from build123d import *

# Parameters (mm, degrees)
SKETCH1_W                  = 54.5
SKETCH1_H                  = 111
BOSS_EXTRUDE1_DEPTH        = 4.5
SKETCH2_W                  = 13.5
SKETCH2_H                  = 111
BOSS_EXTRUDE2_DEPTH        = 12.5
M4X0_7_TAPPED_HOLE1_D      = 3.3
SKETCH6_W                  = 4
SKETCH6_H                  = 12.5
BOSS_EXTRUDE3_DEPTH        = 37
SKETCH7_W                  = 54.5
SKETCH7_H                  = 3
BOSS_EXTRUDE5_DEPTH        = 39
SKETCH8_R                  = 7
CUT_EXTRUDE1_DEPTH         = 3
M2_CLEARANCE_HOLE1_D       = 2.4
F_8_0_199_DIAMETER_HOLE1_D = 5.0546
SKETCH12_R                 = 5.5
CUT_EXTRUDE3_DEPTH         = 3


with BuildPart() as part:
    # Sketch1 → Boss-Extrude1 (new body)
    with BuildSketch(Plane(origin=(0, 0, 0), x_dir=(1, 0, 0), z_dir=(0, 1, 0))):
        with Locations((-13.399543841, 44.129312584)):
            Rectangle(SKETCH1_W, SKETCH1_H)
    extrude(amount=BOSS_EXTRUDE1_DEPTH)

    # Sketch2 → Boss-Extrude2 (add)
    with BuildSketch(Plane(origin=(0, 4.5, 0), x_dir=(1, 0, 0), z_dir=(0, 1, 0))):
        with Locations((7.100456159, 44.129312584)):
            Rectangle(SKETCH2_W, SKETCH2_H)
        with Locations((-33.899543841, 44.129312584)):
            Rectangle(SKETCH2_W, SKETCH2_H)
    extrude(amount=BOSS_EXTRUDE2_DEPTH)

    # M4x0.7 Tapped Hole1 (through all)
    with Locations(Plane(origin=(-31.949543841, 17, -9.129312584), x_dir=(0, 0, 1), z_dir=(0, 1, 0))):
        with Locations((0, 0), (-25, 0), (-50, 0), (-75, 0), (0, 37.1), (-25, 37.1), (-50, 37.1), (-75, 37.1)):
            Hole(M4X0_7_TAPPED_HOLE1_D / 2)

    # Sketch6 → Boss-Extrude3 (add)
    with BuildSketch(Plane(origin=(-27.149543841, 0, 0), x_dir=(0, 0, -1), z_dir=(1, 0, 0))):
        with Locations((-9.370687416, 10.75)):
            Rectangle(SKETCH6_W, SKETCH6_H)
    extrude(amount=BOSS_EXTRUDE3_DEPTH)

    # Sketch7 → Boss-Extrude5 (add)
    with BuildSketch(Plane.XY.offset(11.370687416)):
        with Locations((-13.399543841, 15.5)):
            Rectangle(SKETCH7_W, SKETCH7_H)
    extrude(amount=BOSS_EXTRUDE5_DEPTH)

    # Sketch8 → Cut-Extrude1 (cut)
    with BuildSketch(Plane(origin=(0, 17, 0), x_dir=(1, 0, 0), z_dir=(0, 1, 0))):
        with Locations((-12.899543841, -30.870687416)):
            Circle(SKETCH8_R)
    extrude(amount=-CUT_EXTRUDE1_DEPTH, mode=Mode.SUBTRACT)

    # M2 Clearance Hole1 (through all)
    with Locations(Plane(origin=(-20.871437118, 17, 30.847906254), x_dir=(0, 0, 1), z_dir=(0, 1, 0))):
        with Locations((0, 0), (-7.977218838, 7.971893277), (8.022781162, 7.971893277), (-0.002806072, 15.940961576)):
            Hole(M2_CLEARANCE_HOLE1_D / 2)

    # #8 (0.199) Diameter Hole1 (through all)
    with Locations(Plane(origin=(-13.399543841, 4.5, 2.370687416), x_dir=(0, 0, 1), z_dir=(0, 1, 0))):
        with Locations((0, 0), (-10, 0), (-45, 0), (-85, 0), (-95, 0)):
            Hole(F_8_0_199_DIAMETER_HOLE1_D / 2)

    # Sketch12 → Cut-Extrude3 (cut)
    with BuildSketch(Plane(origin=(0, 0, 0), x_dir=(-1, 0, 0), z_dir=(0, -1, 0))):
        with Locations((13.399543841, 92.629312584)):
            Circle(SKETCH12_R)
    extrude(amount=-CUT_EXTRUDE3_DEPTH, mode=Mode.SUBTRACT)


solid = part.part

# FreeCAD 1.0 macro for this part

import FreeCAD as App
import Part
import Sketcher
from FreeCAD import Vector

doc = App.newDocument("Part")
body = doc.addObject("PartDesign::Body", "Body")

# Sketch on XZ plane
sketch1 = body.newObject("Sketcher::SketchObject", "Sketch")
sketch1.AttachmentSupport = (doc.getObject("XZ_Plane"), [""])
sketch1.MapMode = "FlatFace"
sketch1.addGeometry(Part.LineSegment(Vector(-41, -100, 0), Vector(-41, 11, 0)), False)
sketch1.addGeometry(Part.LineSegment(Vector(-41, 11, 0), Vector(14, 11, 0)), False)
sketch1.addGeometry(Part.LineSegment(Vector(14, 11, 0), Vector(14, -100, 0)), False)
sketch1.addGeometry(Part.LineSegment(Vector(14, -100, 0), Vector(-41, -100, 0)), False)
sketch1.addConstraint(Sketcher.Constraint("Coincident", 0, 2, 1, 1))
sketch1.addConstraint(Sketcher.Constraint("Coincident", 1, 2, 2, 1))
sketch1.addConstraint(Sketcher.Constraint("Coincident", 2, 2, 3, 1))
sketch1.addConstraint(Sketcher.Constraint("Coincident", 3, 2, 0, 1))
sketch1.addConstraint(Sketcher.Constraint("Vertical", 0))
sketch1.addConstraint(Sketcher.Constraint("Horizontal", 1))
sketch1.addConstraint(Sketcher.Constraint("Vertical", 2))
sketch1.addConstraint(Sketcher.Constraint("Horizontal", 3))
sketch1.addConstraint(Sketcher.Constraint("DistanceY", 0, 1, 0, 2, 111.0))
sketch1.addConstraint(Sketcher.Constraint("DistanceX", 1, 1, 1, 2, 54.5))
sketch1.addConstraint(Sketcher.Constraint("DistanceX", 0, 2, -1, 1, 40.649544))
sketch1.addConstraint(Sketcher.Constraint("DistanceY", -1, 1, 0, 2, 11.370687))
pad1 = body.newObject("PartDesign::Pad", "Pad")
pad1.Profile = sketch1
pad1.Length = 4.5
pad1.Reversed = True

# Sketch on XZ plane
sketch2 = body.newObject("Sketcher::SketchObject", "Sketch001")
sketch2.AttachmentSupport = (doc.getObject("XZ_Plane"), [""])
sketch2.MapMode = "FlatFace"
sketch2.AttachmentOffset = App.Placement(Vector(0, 0, -4.5), App.Rotation())
sketch2.addGeometry(Part.LineSegment(Vector(0, -100, 0), Vector(0, 11, 0)), False)
sketch2.addGeometry(Part.LineSegment(Vector(0, 11, 0), Vector(14, 11, 0)), False)
sketch2.addGeometry(Part.LineSegment(Vector(14, 11, 0), Vector(14, -100, 0)), False)
sketch2.addGeometry(Part.LineSegment(Vector(14, -100, 0), Vector(0, -100, 0)), False)
sketch2.addGeometry(Part.LineSegment(Vector(-41, -100, 0), Vector(-41, 11, 0)), False)
sketch2.addGeometry(Part.LineSegment(Vector(-41, 11, 0), Vector(-27, 11, 0)), False)
sketch2.addGeometry(Part.LineSegment(Vector(-27, 11, 0), Vector(-27, -100, 0)), False)
sketch2.addGeometry(Part.LineSegment(Vector(-27, -100, 0), Vector(-41, -100, 0)), False)
sketch2.addConstraint(Sketcher.Constraint("Coincident", 0, 2, 1, 1))
sketch2.addConstraint(Sketcher.Constraint("Coincident", 1, 2, 2, 1))
sketch2.addConstraint(Sketcher.Constraint("Coincident", 2, 2, 3, 1))
sketch2.addConstraint(Sketcher.Constraint("Coincident", 3, 2, 0, 1))
sketch2.addConstraint(Sketcher.Constraint("Coincident", 4, 2, 5, 1))
sketch2.addConstraint(Sketcher.Constraint("Coincident", 5, 2, 6, 1))
sketch2.addConstraint(Sketcher.Constraint("Coincident", 6, 2, 7, 1))
sketch2.addConstraint(Sketcher.Constraint("Coincident", 7, 2, 4, 1))
sketch2.addConstraint(Sketcher.Constraint("Vertical", 0))
sketch2.addConstraint(Sketcher.Constraint("Horizontal", 1))
sketch2.addConstraint(Sketcher.Constraint("Vertical", 2))
sketch2.addConstraint(Sketcher.Constraint("Horizontal", 3))
sketch2.addConstraint(Sketcher.Constraint("Vertical", 4))
sketch2.addConstraint(Sketcher.Constraint("Horizontal", 5))
sketch2.addConstraint(Sketcher.Constraint("Vertical", 6))
sketch2.addConstraint(Sketcher.Constraint("Horizontal", 7))
sketch2.addConstraint(Sketcher.Constraint("Horizontal", 1, 2, 4, 2))
sketch2.addConstraint(Sketcher.Constraint("Horizontal", 3, 2, 6, 2))
sketch2.addConstraint(Sketcher.Constraint("Equal", 3, 5))
sketch2.addConstraint(Sketcher.Constraint("DistanceY", 0, 1, 0, 2, 111.0))
sketch2.addConstraint(Sketcher.Constraint("DistanceX", 1, 1, 1, 2, 13.5))
sketch2.addConstraint(Sketcher.Constraint("DistanceX", 4, 2, 0, 2, 41.0))
sketch2.addConstraint(Sketcher.Constraint("DistanceX", -1, 1, 0, 2, 0.350456))
sketch2.addConstraint(Sketcher.Constraint("DistanceY", -1, 1, 0, 2, 11.370687))
pad2 = body.newObject("PartDesign::Pad", "Pad001")
pad2.Profile = sketch2
pad2.Length = 12.5
pad2.Reversed = True

# Sketch on XZ plane
sketch3 = body.newObject("Sketcher::SketchObject", "Sketch002")
sketch3.AttachmentSupport = (doc.getObject("XZ_Plane"), [""])
sketch3.MapMode = "FlatFace"
sketch3.AttachmentOffset = App.Placement(Vector(0, 0, -17), App.Rotation())
sketch3.addGeometry(Part.Circle(Vector(-31.9, -9.1, 0), Vector(0, 0, 1), 1.6), False)
sketch3.addGeometry(Part.Circle(Vector(-31.9, -34.1, 0), Vector(0, 0, 1), 1.6), False)
sketch3.addGeometry(Part.Circle(Vector(-31.9, -59.1, 0), Vector(0, 0, 1), 1.6), False)
sketch3.addGeometry(Part.Circle(Vector(-31.9, -84.1, 0), Vector(0, 0, 1), 1.6), False)
sketch3.addGeometry(Part.Circle(Vector(5.2, -9.1, 0), Vector(0, 0, 1), 1.6), False)
sketch3.addGeometry(Part.Circle(Vector(5.2, -34.1, 0), Vector(0, 0, 1), 1.6), False)
sketch3.addGeometry(Part.Circle(Vector(5.2, -59.1, 0), Vector(0, 0, 1), 1.6), False)
sketch3.addGeometry(Part.Circle(Vector(5.2, -84.1, 0), Vector(0, 0, 1), 1.6), False)
sketch3.addConstraint(Sketcher.Constraint("Equal", 0, 1))
sketch3.addConstraint(Sketcher.Constraint("Equal", 1, 2))
sketch3.addConstraint(Sketcher.Constraint("Equal", 2, 3))
sketch3.addConstraint(Sketcher.Constraint("Equal", 3, 4))
sketch3.addConstraint(Sketcher.Constraint("Equal", 4, 5))
sketch3.addConstraint(Sketcher.Constraint("Equal", 5, 6))
sketch3.addConstraint(Sketcher.Constraint("Equal", 6, 7))
sketch3.addConstraint(Sketcher.Constraint("Horizontal", 0, 3, 4, 3))
sketch3.addConstraint(Sketcher.Constraint("Horizontal", 1, 3, 5, 3))
sketch3.addConstraint(Sketcher.Constraint("Horizontal", 2, 3, 6, 3))
sketch3.addConstraint(Sketcher.Constraint("Horizontal", 3, 3, 7, 3))
sketch3.addConstraint(Sketcher.Constraint("Vertical", 0, 3, 1, 3))
sketch3.addConstraint(Sketcher.Constraint("Vertical", 1, 3, 2, 3))
sketch3.addConstraint(Sketcher.Constraint("Vertical", 2, 3, 3, 3))
sketch3.addConstraint(Sketcher.Constraint("Vertical", 4, 3, 5, 3))
sketch3.addConstraint(Sketcher.Constraint("Vertical", 5, 3, 6, 3))
sketch3.addConstraint(Sketcher.Constraint("Vertical", 6, 3, 7, 3))
sketch3.addConstraint(Sketcher.Constraint("Diameter", 0, 3.3))
sketch3.addConstraint(Sketcher.Constraint("DistanceY", 1, 3, 0, 3, 25.0))
sketch3.addConstraint(Sketcher.Constraint("DistanceY", 2, 3, 1, 3, 25.0))
sketch3.addConstraint(Sketcher.Constraint("DistanceY", 3, 3, 2, 3, 25.0))
sketch3.addConstraint(Sketcher.Constraint("DistanceX", 0, 3, 4, 3, 37.1))
sketch3.addConstraint(Sketcher.Constraint("DistanceX", 0, 3, -1, 1, 31.949544))
sketch3.addConstraint(Sketcher.Constraint("DistanceY", 0, 3, -1, 1, 9.129313))
doc.recompute()
hole = body.newObject("PartDesign::Hole", "Hole")
hole.Profile = sketch3
hole.ThreadType = "None"
hole.Diameter = 3.3
hole.DepthType = "ThroughAll"
hole.Reversed = True

# Sketch on YZ plane
sketch4 = body.newObject("Sketcher::SketchObject", "Sketch003")
sketch4.AttachmentSupport = (doc.getObject("YZ_Plane"), [""])
sketch4.MapMode = "FlatFace"
sketch4.AttachmentOffset = App.Placement(Vector(0, 0, -27.149544), App.Rotation())
sketch4.addGeometry(Part.LineSegment(Vector(17, 11.4, 0), Vector(4.5, 11.4, 0)), False)
sketch4.addGeometry(Part.LineSegment(Vector(4.5, 11.4, 0), Vector(4.5, 7.4, 0)), False)
sketch4.addGeometry(Part.LineSegment(Vector(4.5, 7.4, 0), Vector(17, 7.4, 0)), False)
sketch4.addGeometry(Part.LineSegment(Vector(17, 7.4, 0), Vector(17, 11.4, 0)), False)
sketch4.addConstraint(Sketcher.Constraint("Coincident", 0, 2, 1, 1))
sketch4.addConstraint(Sketcher.Constraint("Coincident", 1, 2, 2, 1))
sketch4.addConstraint(Sketcher.Constraint("Coincident", 2, 2, 3, 1))
sketch4.addConstraint(Sketcher.Constraint("Coincident", 3, 2, 0, 1))
sketch4.addConstraint(Sketcher.Constraint("Horizontal", 0))
sketch4.addConstraint(Sketcher.Constraint("Vertical", 1))
sketch4.addConstraint(Sketcher.Constraint("Horizontal", 2))
sketch4.addConstraint(Sketcher.Constraint("Vertical", 3))
sketch4.addConstraint(Sketcher.Constraint("DistanceY", 1, 2, 1, 1, 4.0))
sketch4.addConstraint(Sketcher.Constraint("DistanceX", 0, 2, 0, 1, 12.5))
sketch4.addConstraint(Sketcher.Constraint("DistanceX", -1, 1, 2, 2, 17.0))
sketch4.addConstraint(Sketcher.Constraint("DistanceY", -1, 1, 0, 2, 11.370687))
pad3 = body.newObject("PartDesign::Pad", "Pad002")
pad3.Profile = sketch4
pad3.Length = 37

# Sketch on XY plane
sketch5 = body.newObject("Sketcher::SketchObject", "Sketch004")
sketch5.AttachmentSupport = (doc.getObject("XY_Plane"), [""])
sketch5.MapMode = "FlatFace"
sketch5.AttachmentOffset = App.Placement(Vector(0, 0, 11.370687), App.Rotation())
sketch5.addGeometry(Part.LineSegment(Vector(-40.6, 17, 0), Vector(-40.6, 14, 0)), False)
sketch5.addGeometry(Part.LineSegment(Vector(-40.6, 14, 0), Vector(13.9, 14, 0)), False)
sketch5.addGeometry(Part.LineSegment(Vector(13.9, 14, 0), Vector(13.9, 17, 0)), False)
sketch5.addGeometry(Part.LineSegment(Vector(13.9, 17, 0), Vector(-40.6, 17, 0)), False)
sketch5.addConstraint(Sketcher.Constraint("Coincident", 0, 2, 1, 1))
sketch5.addConstraint(Sketcher.Constraint("Coincident", 1, 2, 2, 1))
sketch5.addConstraint(Sketcher.Constraint("Coincident", 2, 2, 3, 1))
sketch5.addConstraint(Sketcher.Constraint("Coincident", 3, 2, 0, 1))
sketch5.addConstraint(Sketcher.Constraint("Vertical", 0))
sketch5.addConstraint(Sketcher.Constraint("Horizontal", 1))
sketch5.addConstraint(Sketcher.Constraint("Vertical", 2))
sketch5.addConstraint(Sketcher.Constraint("Horizontal", 3))
sketch5.addConstraint(Sketcher.Constraint("DistanceY", 0, 2, 0, 1, 3.0))
sketch5.addConstraint(Sketcher.Constraint("DistanceX", 1, 1, 1, 2, 54.5))
sketch5.addConstraint(Sketcher.Constraint("DistanceY", -1, 1, 0, 2, 14.0))
sketch5.addConstraint(Sketcher.Constraint("DistanceX", 0, 2, -1, 1, 40.649544))
pad4 = body.newObject("PartDesign::Pad", "Pad003")
pad4.Profile = sketch5
pad4.Length = 39

# Sketch on XZ plane
sketch6 = body.newObject("Sketcher::SketchObject", "Sketch005")
sketch6.AttachmentSupport = (doc.getObject("XZ_Plane"), [""])
sketch6.MapMode = "FlatFace"
sketch6.AttachmentOffset = App.Placement(Vector(0, 0, -17), App.Rotation())
sketch6.addGeometry(Part.Circle(Vector(-13, 31, 0), Vector(0, 0, 1), 7), False)
sketch6.addConstraint(Sketcher.Constraint("Diameter", 0, 14.0))
sketch6.addConstraint(Sketcher.Constraint("DistanceX", 0, 3, -1, 1, 12.899544))
sketch6.addConstraint(Sketcher.Constraint("DistanceY", -1, 1, 0, 3, 30.870687))
pocket1 = body.newObject("PartDesign::Pocket", "Pocket")
pocket1.Profile = sketch6
pocket1.Length = 3
pocket1.Reversed = True

# Sketch on XZ plane
sketch7 = body.newObject("Sketcher::SketchObject", "Sketch006")
sketch7.AttachmentSupport = (doc.getObject("XZ_Plane"), [""])
sketch7.MapMode = "FlatFace"
sketch7.AttachmentOffset = App.Placement(Vector(0, 0, -17), App.Rotation())
sketch7.addGeometry(Part.Circle(Vector(-20.9, 30.8, 0), Vector(0, 0, 1), 1.2), False)
sketch7.addGeometry(Part.Circle(Vector(-12.9, 22.9, 0), Vector(0, 0, 1), 1.2), False)
sketch7.addGeometry(Part.Circle(Vector(-12.9, 38.9, 0), Vector(0, 0, 1), 1.2), False)
sketch7.addGeometry(Part.Circle(Vector(-4.9, 30.8, 0), Vector(0, 0, 1), 1.2), False)
sketch7.addConstraint(Sketcher.Constraint("Equal", 0, 1))
sketch7.addConstraint(Sketcher.Constraint("Equal", 1, 2))
sketch7.addConstraint(Sketcher.Constraint("Equal", 2, 3))
sketch7.addConstraint(Sketcher.Constraint("Vertical", 1, 3, 2, 3))
sketch7.addConstraint(Sketcher.Constraint("Diameter", 0, 2.4))
sketch7.addConstraint(Sketcher.Constraint("DistanceY", 1, 3, 2, 3, 16.0))
sketch7.addConstraint(Sketcher.Constraint("DistanceY", -1, 1, 3, 3, 30.8451))
sketch7.addConstraint(Sketcher.Constraint("DistanceY", 1, 3, 0, 3, 7.977219))
sketch7.addConstraint(Sketcher.Constraint("DistanceX", 1, 3, 3, 3, 7.969068))
sketch7.addConstraint(Sketcher.Constraint("DistanceX", 0, 3, 3, 3, 15.940962))
sketch7.addConstraint(Sketcher.Constraint("DistanceX", 0, 3, -1, 1, 20.871437))
sketch7.addConstraint(Sketcher.Constraint("DistanceY", -1, 1, 0, 3, 30.847906))
doc.recompute()
hole2 = body.newObject("PartDesign::Hole", "Hole001")
hole2.Profile = sketch7
hole2.ThreadType = "None"
hole2.Diameter = 2.4
hole2.DepthType = "ThroughAll"
hole2.Reversed = True

# Sketch on XZ plane
sketch8 = body.newObject("Sketcher::SketchObject", "Sketch007")
sketch8.AttachmentSupport = (doc.getObject("XZ_Plane"), [""])
sketch8.MapMode = "FlatFace"
sketch8.AttachmentOffset = App.Placement(Vector(0, 0, -4.5), App.Rotation())
sketch8.addGeometry(Part.Circle(Vector(-13.4, 2.4, 0), Vector(0, 0, 1), 2.5), False)
sketch8.addGeometry(Part.Circle(Vector(-13.4, -7.6, 0), Vector(0, 0, 1), 2.5), False)
sketch8.addGeometry(Part.Circle(Vector(-13.4, -42.6, 0), Vector(0, 0, 1), 2.5), False)
sketch8.addGeometry(Part.Circle(Vector(-13.4, -82.6, 0), Vector(0, 0, 1), 2.5), False)
sketch8.addGeometry(Part.Circle(Vector(-13.4, -92.6, 0), Vector(0, 0, 1), 2.5), False)
sketch8.addConstraint(Sketcher.Constraint("Equal", 0, 1))
sketch8.addConstraint(Sketcher.Constraint("Equal", 1, 2))
sketch8.addConstraint(Sketcher.Constraint("Equal", 2, 3))
sketch8.addConstraint(Sketcher.Constraint("Equal", 3, 4))
sketch8.addConstraint(Sketcher.Constraint("Vertical", 0, 3, 1, 3))
sketch8.addConstraint(Sketcher.Constraint("Vertical", 1, 3, 2, 3))
sketch8.addConstraint(Sketcher.Constraint("Vertical", 2, 3, 3, 3))
sketch8.addConstraint(Sketcher.Constraint("Vertical", 3, 3, 4, 3))
sketch8.addConstraint(Sketcher.Constraint("DistanceY", 1, 3, 0, 3, 10.0))
sketch8.addConstraint(Sketcher.Constraint("DistanceY", 2, 3, 1, 3, 35.0))
sketch8.addConstraint(Sketcher.Constraint("DistanceY", 3, 3, 2, 3, 40.0))
sketch8.addConstraint(Sketcher.Constraint("DistanceY", 4, 3, 3, 3, 10.0))
sketch8.addConstraint(Sketcher.Constraint("Diameter", 0, 5.0546))
sketch8.addConstraint(Sketcher.Constraint("DistanceX", 0, 3, -1, 1, 13.399544))
sketch8.addConstraint(Sketcher.Constraint("DistanceY", -1, 1, 0, 3, 2.370687))
doc.recompute()
hole3 = body.newObject("PartDesign::Hole", "Hole002")
hole3.Profile = sketch8
hole3.ThreadType = "None"
hole3.Diameter = 5.0546
hole3.DepthType = "ThroughAll"
hole3.Reversed = True

# Sketch on XZ plane
sketch9 = body.newObject("Sketcher::SketchObject", "Sketch008")
sketch9.AttachmentSupport = (doc.getObject("XZ_Plane"), [""])
sketch9.MapMode = "FlatFace"
sketch9.addGeometry(Part.Circle(Vector(-13, -93, 0), Vector(0, 0, 1), 6), False)
sketch9.addConstraint(Sketcher.Constraint("Diameter", 0, 11.0))
sketch9.addConstraint(Sketcher.Constraint("DistanceX", 0, 3, -1, 1, 13.399544))
sketch9.addConstraint(Sketcher.Constraint("DistanceY", 0, 3, -1, 1, 92.629313))
pocket2 = body.newObject("PartDesign::Pocket", "Pocket001")
pocket2.Profile = sketch9
pocket2.Length = 3

doc.recompute()
